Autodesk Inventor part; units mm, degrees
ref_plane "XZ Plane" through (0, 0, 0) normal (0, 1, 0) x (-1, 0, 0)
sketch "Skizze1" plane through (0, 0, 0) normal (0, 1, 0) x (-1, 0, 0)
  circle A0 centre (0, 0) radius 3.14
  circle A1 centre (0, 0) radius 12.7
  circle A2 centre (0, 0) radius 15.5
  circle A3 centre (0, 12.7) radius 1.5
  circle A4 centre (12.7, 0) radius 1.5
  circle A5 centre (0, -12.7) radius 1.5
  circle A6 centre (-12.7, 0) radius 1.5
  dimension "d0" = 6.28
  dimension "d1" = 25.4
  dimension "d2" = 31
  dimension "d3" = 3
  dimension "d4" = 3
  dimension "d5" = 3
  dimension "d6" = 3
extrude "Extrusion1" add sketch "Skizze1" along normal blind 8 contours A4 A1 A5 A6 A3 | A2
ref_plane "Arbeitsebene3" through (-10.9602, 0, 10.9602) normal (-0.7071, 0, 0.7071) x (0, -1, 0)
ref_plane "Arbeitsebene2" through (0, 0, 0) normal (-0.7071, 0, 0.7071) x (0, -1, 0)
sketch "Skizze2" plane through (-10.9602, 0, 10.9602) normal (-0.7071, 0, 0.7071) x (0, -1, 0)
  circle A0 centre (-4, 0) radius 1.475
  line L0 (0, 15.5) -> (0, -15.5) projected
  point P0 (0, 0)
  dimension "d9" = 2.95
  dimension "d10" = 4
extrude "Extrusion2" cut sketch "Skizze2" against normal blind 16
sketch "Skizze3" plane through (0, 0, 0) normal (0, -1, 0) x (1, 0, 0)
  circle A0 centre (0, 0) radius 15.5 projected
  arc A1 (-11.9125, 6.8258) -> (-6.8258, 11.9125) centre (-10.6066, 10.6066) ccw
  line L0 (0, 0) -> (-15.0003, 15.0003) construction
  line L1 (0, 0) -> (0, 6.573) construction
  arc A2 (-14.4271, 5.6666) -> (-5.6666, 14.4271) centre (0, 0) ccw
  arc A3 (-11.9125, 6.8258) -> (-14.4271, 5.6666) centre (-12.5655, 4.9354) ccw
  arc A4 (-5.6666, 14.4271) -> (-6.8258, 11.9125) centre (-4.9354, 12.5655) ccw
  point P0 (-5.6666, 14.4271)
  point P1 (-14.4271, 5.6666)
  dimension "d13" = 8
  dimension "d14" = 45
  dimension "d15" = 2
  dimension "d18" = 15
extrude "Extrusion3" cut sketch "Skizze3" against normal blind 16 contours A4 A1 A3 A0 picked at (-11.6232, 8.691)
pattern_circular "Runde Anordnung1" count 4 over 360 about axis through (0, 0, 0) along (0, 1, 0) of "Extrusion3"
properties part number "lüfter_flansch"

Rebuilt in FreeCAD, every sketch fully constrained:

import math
import FreeCAD as App
import Part
import Sketcher
from FreeCAD import Vector

doc = App.newDocument("Part")
body = doc.addObject("PartDesign::Body", "Body")

# Sketch on XZ plane
sketch1 = body.newObject("Sketcher::SketchObject", "Sketch")
sketch1.AttachmentSupport = (doc.getObject("XZ_Plane"), [""])
sketch1.MapMode = "FlatFace"
sketch1.addGeometry(Part.Circle(Vector(0, 0, 0), Vector(0, 0, 1), 15.5), False)
sketch1.addGeometry(Part.Circle(Vector(-12.7, 0, 0), Vector(0, 0, 1), 1.5), False)
sketch1.addGeometry(Part.Circle(Vector(0, -12.7, 0), Vector(0, 0, 1), 1.5), False)
sketch1.addGeometry(Part.Circle(Vector(12.7, 0, 0), Vector(0, 0, 1), 1.5), False)
sketch1.addGeometry(Part.Circle(Vector(0, 12.7, 0), Vector(0, 0, 1), 1.5), False)
sketch1.addGeometry(Part.Circle(Vector(0, 0, 0), Vector(0, 0, 1), 3.14), False)
sketch1.addConstraint(Sketcher.Constraint("Coincident", 0, 3, -1, 1))
sketch1.addConstraint(Sketcher.Constraint("Coincident", 5, 3, -1, 1))
sketch1.addConstraint(Sketcher.Constraint("Equal", 1, 2))
sketch1.addConstraint(Sketcher.Constraint("Equal", 2, 3))
sketch1.addConstraint(Sketcher.Constraint("Equal", 3, 4))
sketch1.addConstraint(Sketcher.Constraint("Symmetric", 1, 3, 3, 3, -1, 1))
sketch1.addConstraint(Sketcher.Constraint("Symmetric", 2, 3, 4, 3, -1, 1))
sketch1.addConstraint(Sketcher.Constraint("PointOnObject", 1, 3, -1))
sketch1.addConstraint(Sketcher.Constraint("PointOnObject", 2, 3, -2))
sketch1.addConstraint(Sketcher.Constraint("Diameter", 0, 31.0))
sketch1.addConstraint(Sketcher.Constraint("Diameter", 1, 3.0))
sketch1.addConstraint(Sketcher.Constraint("Diameter", 5, 6.28))
sketch1.addConstraint(Sketcher.Constraint("DistanceX", 1, 3, 3, 3, 25.4))
sketch1.addConstraint(Sketcher.Constraint("DistanceY", 2, 3, 4, 3, 25.4))
pad1 = body.newObject("PartDesign::Pad", "Pad")
pad1.Profile = sketch1
pad1.Length = 8
pad1.Reversed = True

# Sketch on an angled plane
sketch2 = body.newObject("Sketcher::SketchObject", "Sketch001")
sketch2.Placement = App.Placement(Vector(-10.9602, 0, 10.9602), App.Rotation(Vector(0, -1, 0), Vector(0.707106781, 0, 0.707106781), Vector(-0.707106781, 0, 0.707106781), "ZXY"))
sketch2.addGeometry(Part.Circle(Vector(-4, 0, 0), Vector(0, 0, 1), 1.475), False)
sketch2.addConstraint(Sketcher.Constraint("PointOnObject", 0, 3, -1))
sketch2.addConstraint(Sketcher.Constraint("Diameter", 0, 2.95))
sketch2.addConstraint(Sketcher.Constraint("DistanceX", 0, 3, -1, 1, 4.0))
pocket1 = body.newObject("PartDesign::Pocket", "Pocket")
pocket1.Profile = sketch2
pocket1.Length = 16

# Sketch on XZ plane
sketch3 = body.newObject("Sketcher::SketchObject", "Sketch002")
sketch3.AttachmentSupport = (doc.getObject("XZ_Plane"), [""])
sketch3.MapMode = "FlatFace"
sketch3.addGeometry(Part.ArcOfCircle(Part.Circle(Vector(-4.9354, 12.5655, 0), Vector(0, 0, 1), 2.000052), math.radians(111.443927), math.radians(199.056424)), False)
sketch3.addGeometry(Part.ArcOfCircle(Part.Circle(Vector(0, 0, 0), Vector(0, 0, 1), 15.5), math.radians(111.443645), math.radians(158.556355)), False)
sketch3.addGeometry(Part.ArcOfCircle(Part.Circle(Vector(-12.5655, 4.9354, 0), Vector(0, 0, 1), 2.000005), math.radians(70.943576), math.radians(158.556073)), False)
sketch3.addGeometry(Part.ArcOfCircle(Part.Circle(Vector(-10.6066, 10.6066, 0), Vector(0, 0, 1), 3.999978), math.radians(-109.055071), math.radians(19.055071)), False)
sketch3.addConstraint(Sketcher.Constraint("Tangent", 0, 1, 1, 1))
sketch3.addConstraint(Sketcher.Constraint("Tangent", 1, 2, 2, 2))
sketch3.addConstraint(Sketcher.Constraint("Tangent", 2, 1, 3, 1))
sketch3.addConstraint(Sketcher.Constraint("Tangent", 3, 2, 0, 2))
sketch3.addConstraint(Sketcher.Constraint("Coincident", 1, 3, -1, 1))
sketch3.addConstraint(Sketcher.Constraint("Equal", 0, 2))
sketch3.addConstraint(Sketcher.Constraint("Radius", 0, 2.0))
sketch3.addConstraint(Sketcher.Constraint("Radius", 3, 4.0))
sketch3.addConstraint(Sketcher.Constraint("Radius", 1, 15.5))
sketch3.addConstraint(Sketcher.Constraint("DistanceX", 2, 3, 0, 3, 7.63))
sketch3.addConstraint(Sketcher.Constraint("DistanceY", 2, 3, 0, 3, 7.63))
pocket2 = body.newObject("PartDesign::Pocket", "Pocket001")
pocket2.Profile = sketch3
pocket2.Length = 16
doc.recompute()

polarpattern = body.newObject("PartDesign::PolarPattern", "PolarPattern")
polarpattern.Originals = [pocket2]
polarpattern.Axis = (doc.getObject("Y_Axis"), [""])
polarpattern.Angle = 360
polarpattern.Occurrences = 4
body.Tip = polarpattern

doc.recompute()
